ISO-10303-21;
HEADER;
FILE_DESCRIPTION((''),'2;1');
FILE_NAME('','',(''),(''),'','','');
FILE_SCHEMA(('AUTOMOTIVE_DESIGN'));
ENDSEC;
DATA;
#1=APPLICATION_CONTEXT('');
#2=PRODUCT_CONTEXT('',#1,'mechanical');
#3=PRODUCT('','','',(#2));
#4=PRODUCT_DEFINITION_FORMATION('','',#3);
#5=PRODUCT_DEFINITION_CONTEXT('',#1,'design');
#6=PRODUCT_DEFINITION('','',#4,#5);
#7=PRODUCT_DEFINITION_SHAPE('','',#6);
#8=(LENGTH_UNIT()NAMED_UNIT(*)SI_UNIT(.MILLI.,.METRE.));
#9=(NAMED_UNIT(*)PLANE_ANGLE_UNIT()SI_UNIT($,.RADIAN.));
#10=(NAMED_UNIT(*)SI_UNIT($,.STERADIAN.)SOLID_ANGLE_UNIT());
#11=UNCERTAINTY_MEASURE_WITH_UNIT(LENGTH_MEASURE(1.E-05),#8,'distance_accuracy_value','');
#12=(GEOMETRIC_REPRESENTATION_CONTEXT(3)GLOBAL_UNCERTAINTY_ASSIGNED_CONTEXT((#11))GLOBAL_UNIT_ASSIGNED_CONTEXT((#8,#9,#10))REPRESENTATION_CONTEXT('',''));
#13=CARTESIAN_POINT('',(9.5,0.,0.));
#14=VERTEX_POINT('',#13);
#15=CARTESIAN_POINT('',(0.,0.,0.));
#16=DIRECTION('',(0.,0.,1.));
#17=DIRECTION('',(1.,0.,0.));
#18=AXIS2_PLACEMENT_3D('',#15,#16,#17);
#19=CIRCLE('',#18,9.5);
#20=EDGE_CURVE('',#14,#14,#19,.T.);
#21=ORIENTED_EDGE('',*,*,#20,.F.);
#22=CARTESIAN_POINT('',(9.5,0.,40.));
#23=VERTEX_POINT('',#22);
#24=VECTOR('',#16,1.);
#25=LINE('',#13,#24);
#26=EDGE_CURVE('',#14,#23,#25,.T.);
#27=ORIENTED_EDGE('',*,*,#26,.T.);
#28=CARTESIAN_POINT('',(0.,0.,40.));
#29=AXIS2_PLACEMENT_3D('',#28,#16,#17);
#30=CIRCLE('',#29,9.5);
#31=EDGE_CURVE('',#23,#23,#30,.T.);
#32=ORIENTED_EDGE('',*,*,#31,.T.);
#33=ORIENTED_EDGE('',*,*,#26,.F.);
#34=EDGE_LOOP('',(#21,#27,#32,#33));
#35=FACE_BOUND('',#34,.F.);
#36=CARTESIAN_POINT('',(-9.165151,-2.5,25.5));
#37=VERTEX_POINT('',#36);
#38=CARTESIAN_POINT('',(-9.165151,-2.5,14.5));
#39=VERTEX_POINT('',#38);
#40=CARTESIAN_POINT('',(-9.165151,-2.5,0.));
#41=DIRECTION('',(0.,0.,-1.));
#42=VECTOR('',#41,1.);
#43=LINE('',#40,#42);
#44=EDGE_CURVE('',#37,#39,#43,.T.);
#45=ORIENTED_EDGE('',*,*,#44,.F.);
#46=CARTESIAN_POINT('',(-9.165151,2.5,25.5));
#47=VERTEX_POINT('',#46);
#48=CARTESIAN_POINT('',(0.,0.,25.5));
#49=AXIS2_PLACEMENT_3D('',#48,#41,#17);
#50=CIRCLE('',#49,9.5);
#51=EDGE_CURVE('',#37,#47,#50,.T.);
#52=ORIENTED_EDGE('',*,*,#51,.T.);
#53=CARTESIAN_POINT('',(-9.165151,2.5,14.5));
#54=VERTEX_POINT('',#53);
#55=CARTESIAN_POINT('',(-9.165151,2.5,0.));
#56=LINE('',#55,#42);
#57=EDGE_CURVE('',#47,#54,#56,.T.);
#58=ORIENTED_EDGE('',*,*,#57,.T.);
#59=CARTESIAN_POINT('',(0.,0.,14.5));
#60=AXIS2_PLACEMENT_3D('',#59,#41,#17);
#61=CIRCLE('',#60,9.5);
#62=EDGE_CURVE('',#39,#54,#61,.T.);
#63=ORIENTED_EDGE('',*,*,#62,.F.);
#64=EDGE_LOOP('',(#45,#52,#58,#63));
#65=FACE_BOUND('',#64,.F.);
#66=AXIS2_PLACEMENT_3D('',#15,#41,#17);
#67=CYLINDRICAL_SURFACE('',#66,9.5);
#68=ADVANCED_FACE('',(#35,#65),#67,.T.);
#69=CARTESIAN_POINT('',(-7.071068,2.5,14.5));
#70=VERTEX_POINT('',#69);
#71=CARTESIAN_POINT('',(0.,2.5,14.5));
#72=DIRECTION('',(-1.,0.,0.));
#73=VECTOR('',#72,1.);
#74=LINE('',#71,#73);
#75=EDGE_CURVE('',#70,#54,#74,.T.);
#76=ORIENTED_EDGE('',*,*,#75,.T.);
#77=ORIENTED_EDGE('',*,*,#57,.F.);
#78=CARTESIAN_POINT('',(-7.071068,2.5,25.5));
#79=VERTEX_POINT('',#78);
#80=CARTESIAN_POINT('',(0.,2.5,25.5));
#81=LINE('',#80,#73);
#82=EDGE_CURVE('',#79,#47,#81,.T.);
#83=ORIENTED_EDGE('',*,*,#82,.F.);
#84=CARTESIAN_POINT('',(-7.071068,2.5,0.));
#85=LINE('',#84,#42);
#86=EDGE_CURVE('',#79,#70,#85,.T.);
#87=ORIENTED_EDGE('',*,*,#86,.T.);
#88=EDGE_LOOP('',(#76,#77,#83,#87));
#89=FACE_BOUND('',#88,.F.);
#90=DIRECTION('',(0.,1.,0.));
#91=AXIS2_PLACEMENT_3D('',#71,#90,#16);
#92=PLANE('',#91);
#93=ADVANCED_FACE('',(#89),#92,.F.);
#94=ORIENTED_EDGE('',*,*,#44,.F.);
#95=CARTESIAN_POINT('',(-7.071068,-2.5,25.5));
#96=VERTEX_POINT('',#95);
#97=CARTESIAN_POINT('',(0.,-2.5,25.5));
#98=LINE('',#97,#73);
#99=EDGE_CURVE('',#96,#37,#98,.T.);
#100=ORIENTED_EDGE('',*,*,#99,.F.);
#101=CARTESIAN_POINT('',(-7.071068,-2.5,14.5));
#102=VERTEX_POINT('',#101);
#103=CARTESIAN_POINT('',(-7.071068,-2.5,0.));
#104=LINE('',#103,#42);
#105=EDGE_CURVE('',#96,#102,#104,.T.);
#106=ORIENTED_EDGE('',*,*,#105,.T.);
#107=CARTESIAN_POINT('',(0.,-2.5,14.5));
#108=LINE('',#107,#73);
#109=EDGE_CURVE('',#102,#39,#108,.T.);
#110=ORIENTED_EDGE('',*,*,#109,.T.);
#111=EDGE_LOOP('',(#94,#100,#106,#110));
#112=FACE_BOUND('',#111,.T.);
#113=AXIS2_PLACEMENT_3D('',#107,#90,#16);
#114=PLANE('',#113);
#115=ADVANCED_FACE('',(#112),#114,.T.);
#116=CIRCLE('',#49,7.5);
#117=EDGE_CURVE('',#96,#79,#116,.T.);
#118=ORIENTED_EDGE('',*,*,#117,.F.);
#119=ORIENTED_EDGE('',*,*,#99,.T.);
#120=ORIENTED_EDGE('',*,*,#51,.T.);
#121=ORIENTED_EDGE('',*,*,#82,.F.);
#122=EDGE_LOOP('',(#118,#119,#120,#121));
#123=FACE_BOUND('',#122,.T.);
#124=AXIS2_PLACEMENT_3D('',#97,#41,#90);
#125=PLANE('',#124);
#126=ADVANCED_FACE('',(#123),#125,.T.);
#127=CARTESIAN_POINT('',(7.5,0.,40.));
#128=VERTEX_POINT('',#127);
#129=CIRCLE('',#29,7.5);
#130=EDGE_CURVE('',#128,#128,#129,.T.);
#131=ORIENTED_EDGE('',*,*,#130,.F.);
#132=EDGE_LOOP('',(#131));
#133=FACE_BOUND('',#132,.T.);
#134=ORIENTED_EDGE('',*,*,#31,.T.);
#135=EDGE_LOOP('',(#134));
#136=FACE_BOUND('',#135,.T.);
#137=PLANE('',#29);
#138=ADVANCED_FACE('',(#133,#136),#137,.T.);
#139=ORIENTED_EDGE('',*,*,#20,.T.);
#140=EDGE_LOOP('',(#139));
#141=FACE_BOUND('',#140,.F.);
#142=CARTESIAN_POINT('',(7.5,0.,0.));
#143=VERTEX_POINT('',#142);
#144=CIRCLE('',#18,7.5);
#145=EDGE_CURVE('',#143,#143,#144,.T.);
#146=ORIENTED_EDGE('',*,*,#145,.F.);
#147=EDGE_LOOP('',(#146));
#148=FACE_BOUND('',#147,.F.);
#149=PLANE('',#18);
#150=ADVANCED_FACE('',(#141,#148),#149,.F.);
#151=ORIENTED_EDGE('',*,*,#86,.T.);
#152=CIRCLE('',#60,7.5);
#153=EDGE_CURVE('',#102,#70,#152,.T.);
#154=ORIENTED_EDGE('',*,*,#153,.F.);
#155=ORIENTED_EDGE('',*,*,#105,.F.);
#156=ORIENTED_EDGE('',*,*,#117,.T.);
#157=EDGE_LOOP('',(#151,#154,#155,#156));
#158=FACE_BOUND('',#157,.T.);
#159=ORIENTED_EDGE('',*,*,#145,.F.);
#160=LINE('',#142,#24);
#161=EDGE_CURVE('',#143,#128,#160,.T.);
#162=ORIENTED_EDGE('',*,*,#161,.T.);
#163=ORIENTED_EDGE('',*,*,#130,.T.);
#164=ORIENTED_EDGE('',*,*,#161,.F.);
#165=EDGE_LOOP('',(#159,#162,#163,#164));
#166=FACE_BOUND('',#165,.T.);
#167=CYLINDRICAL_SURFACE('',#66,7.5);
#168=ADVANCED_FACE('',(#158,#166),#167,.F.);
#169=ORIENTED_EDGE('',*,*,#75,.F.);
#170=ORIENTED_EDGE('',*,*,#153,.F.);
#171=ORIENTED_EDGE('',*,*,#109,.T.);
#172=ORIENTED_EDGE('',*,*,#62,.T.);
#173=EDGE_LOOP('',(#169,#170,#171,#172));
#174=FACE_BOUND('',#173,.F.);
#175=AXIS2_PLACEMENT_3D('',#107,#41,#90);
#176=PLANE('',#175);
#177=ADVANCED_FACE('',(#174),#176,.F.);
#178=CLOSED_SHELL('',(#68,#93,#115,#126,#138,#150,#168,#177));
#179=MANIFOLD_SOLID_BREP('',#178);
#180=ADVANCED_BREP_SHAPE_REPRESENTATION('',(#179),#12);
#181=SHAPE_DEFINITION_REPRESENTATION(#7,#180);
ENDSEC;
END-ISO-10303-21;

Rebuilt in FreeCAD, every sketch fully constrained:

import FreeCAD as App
import Part
import Sketcher

V = App.Vector
Q = App.Units.Quantity

doc = App.newDocument("Part")
params = doc.addObject("Spreadsheet::Sheet", "Params")
for row, (alias, value) in enumerate([
    ("sketch1_diameter", "19 mm"),
    ("sketch1_diameter2", "15 mm"),
    ("pad1_length", "40 mm"),
    ("sketch2_width", "5 mm"),
    ("sketch2_height", "11 mm"),
    ("pocket1_length", "25 mm"),
], start=1):
    params.set(f"A{row}", alias)
    params.set(f"B{row}", "=" + value)
    params.setAlias(f"B{row}", alias)

body = doc.addObject("PartDesign::Body", "Body")

# Sketch on XY plane
sketch1 = body.newObject("Sketcher::SketchObject", "Sketch")
sketch1.AttachmentSupport = (doc.getObject("XY_Plane"), [""])
sketch1.MapMode = "FlatFace"
sketch1.addGeometry(Part.Circle(V(0, 0, 0), V(0, 0, 1), 9.5), False)
sketch1.addGeometry(Part.Circle(V(0, 0, 0), V(0, 0, 1), 7.5), False)
sketch1.addConstraint(Sketcher.Constraint("Coincident", 0, 3, -1, 1))
sketch1.addConstraint(Sketcher.Constraint("Coincident", 1, 3, -1, 1))
sketch1.addConstraint(Sketcher.Constraint("Diameter", 0, Q("19 mm")))
sketch1.addConstraint(Sketcher.Constraint("Diameter", 1, Q("15 mm")))
sketch1.setExpression("Constraints[2]", "Params.sketch1_diameter")
sketch1.setExpression("Constraints[3]", "Params.sketch1_diameter2")
pad1 = body.newObject("PartDesign::Pad", "Pad")
pad1.Profile = sketch1
pad1.setExpression("Length", "Params.pad1_length")

# Sketch on YZ plane
sketch2 = body.newObject("Sketcher::SketchObject", "Sketch001")
sketch2.AttachmentSupport = (doc.getObject("YZ_Plane"), [""])
sketch2.MapMode = "FlatFace"
sketch2.addGeometry(Part.LineSegment(V(-2.5, 25.5, 0), V(-2.5, 14.5, 0)), False)
sketch2.addGeometry(Part.LineSegment(V(-2.5, 14.5, 0), V(2.5, 14.5, 0)), False)
sketch2.addGeometry(Part.LineSegment(V(2.5, 14.5, 0), V(2.5, 25.5, 0)), False)
sketch2.addGeometry(Part.LineSegment(V(2.5, 25.5, 0), V(-2.5, 25.5, 0)), False)
sketch2.addConstraint(Sketcher.Constraint("Coincident", 0, 2, 1, 1))
sketch2.addConstraint(Sketcher.Constraint("Coincident", 1, 2, 2, 1))
sketch2.addConstraint(Sketcher.Constraint("Coincident", 2, 2, 3, 1))
sketch2.addConstraint(Sketcher.Constraint("Coincident", 3, 2, 0, 1))
sketch2.addConstraint(Sketcher.Constraint("Vertical", 0))
sketch2.addConstraint(Sketcher.Constraint("Horizontal", 1))
sketch2.addConstraint(Sketcher.Constraint("Vertical", 2))
sketch2.addConstraint(Sketcher.Constraint("Horizontal", 3))
sketch2.addConstraint(Sketcher.Constraint("DistanceX", 1, 1, 1, 2, Q("5 mm")))
sketch2.addConstraint(Sketcher.Constraint("DistanceY", 0, 2, 0, 1, Q("11 mm")))
sketch2.addConstraint(Sketcher.Constraint("DistanceX", 0, 2, -1, 1, Q("2.5 mm")))
sketch2.addConstraint(Sketcher.Constraint("DistanceY", -1, 1, 0, 2, Q("14.5 mm")))
sketch2.setExpression("Constraints[8]", "Params.sketch2_width")
sketch2.setExpression("Constraints[9]", "Params.sketch2_height")
pocket1 = body.newObject("PartDesign::Pocket", "Pocket")
pocket1.Profile = sketch2
pocket1.setExpression("Length", "Params.pocket1_length")

doc.recompute()
